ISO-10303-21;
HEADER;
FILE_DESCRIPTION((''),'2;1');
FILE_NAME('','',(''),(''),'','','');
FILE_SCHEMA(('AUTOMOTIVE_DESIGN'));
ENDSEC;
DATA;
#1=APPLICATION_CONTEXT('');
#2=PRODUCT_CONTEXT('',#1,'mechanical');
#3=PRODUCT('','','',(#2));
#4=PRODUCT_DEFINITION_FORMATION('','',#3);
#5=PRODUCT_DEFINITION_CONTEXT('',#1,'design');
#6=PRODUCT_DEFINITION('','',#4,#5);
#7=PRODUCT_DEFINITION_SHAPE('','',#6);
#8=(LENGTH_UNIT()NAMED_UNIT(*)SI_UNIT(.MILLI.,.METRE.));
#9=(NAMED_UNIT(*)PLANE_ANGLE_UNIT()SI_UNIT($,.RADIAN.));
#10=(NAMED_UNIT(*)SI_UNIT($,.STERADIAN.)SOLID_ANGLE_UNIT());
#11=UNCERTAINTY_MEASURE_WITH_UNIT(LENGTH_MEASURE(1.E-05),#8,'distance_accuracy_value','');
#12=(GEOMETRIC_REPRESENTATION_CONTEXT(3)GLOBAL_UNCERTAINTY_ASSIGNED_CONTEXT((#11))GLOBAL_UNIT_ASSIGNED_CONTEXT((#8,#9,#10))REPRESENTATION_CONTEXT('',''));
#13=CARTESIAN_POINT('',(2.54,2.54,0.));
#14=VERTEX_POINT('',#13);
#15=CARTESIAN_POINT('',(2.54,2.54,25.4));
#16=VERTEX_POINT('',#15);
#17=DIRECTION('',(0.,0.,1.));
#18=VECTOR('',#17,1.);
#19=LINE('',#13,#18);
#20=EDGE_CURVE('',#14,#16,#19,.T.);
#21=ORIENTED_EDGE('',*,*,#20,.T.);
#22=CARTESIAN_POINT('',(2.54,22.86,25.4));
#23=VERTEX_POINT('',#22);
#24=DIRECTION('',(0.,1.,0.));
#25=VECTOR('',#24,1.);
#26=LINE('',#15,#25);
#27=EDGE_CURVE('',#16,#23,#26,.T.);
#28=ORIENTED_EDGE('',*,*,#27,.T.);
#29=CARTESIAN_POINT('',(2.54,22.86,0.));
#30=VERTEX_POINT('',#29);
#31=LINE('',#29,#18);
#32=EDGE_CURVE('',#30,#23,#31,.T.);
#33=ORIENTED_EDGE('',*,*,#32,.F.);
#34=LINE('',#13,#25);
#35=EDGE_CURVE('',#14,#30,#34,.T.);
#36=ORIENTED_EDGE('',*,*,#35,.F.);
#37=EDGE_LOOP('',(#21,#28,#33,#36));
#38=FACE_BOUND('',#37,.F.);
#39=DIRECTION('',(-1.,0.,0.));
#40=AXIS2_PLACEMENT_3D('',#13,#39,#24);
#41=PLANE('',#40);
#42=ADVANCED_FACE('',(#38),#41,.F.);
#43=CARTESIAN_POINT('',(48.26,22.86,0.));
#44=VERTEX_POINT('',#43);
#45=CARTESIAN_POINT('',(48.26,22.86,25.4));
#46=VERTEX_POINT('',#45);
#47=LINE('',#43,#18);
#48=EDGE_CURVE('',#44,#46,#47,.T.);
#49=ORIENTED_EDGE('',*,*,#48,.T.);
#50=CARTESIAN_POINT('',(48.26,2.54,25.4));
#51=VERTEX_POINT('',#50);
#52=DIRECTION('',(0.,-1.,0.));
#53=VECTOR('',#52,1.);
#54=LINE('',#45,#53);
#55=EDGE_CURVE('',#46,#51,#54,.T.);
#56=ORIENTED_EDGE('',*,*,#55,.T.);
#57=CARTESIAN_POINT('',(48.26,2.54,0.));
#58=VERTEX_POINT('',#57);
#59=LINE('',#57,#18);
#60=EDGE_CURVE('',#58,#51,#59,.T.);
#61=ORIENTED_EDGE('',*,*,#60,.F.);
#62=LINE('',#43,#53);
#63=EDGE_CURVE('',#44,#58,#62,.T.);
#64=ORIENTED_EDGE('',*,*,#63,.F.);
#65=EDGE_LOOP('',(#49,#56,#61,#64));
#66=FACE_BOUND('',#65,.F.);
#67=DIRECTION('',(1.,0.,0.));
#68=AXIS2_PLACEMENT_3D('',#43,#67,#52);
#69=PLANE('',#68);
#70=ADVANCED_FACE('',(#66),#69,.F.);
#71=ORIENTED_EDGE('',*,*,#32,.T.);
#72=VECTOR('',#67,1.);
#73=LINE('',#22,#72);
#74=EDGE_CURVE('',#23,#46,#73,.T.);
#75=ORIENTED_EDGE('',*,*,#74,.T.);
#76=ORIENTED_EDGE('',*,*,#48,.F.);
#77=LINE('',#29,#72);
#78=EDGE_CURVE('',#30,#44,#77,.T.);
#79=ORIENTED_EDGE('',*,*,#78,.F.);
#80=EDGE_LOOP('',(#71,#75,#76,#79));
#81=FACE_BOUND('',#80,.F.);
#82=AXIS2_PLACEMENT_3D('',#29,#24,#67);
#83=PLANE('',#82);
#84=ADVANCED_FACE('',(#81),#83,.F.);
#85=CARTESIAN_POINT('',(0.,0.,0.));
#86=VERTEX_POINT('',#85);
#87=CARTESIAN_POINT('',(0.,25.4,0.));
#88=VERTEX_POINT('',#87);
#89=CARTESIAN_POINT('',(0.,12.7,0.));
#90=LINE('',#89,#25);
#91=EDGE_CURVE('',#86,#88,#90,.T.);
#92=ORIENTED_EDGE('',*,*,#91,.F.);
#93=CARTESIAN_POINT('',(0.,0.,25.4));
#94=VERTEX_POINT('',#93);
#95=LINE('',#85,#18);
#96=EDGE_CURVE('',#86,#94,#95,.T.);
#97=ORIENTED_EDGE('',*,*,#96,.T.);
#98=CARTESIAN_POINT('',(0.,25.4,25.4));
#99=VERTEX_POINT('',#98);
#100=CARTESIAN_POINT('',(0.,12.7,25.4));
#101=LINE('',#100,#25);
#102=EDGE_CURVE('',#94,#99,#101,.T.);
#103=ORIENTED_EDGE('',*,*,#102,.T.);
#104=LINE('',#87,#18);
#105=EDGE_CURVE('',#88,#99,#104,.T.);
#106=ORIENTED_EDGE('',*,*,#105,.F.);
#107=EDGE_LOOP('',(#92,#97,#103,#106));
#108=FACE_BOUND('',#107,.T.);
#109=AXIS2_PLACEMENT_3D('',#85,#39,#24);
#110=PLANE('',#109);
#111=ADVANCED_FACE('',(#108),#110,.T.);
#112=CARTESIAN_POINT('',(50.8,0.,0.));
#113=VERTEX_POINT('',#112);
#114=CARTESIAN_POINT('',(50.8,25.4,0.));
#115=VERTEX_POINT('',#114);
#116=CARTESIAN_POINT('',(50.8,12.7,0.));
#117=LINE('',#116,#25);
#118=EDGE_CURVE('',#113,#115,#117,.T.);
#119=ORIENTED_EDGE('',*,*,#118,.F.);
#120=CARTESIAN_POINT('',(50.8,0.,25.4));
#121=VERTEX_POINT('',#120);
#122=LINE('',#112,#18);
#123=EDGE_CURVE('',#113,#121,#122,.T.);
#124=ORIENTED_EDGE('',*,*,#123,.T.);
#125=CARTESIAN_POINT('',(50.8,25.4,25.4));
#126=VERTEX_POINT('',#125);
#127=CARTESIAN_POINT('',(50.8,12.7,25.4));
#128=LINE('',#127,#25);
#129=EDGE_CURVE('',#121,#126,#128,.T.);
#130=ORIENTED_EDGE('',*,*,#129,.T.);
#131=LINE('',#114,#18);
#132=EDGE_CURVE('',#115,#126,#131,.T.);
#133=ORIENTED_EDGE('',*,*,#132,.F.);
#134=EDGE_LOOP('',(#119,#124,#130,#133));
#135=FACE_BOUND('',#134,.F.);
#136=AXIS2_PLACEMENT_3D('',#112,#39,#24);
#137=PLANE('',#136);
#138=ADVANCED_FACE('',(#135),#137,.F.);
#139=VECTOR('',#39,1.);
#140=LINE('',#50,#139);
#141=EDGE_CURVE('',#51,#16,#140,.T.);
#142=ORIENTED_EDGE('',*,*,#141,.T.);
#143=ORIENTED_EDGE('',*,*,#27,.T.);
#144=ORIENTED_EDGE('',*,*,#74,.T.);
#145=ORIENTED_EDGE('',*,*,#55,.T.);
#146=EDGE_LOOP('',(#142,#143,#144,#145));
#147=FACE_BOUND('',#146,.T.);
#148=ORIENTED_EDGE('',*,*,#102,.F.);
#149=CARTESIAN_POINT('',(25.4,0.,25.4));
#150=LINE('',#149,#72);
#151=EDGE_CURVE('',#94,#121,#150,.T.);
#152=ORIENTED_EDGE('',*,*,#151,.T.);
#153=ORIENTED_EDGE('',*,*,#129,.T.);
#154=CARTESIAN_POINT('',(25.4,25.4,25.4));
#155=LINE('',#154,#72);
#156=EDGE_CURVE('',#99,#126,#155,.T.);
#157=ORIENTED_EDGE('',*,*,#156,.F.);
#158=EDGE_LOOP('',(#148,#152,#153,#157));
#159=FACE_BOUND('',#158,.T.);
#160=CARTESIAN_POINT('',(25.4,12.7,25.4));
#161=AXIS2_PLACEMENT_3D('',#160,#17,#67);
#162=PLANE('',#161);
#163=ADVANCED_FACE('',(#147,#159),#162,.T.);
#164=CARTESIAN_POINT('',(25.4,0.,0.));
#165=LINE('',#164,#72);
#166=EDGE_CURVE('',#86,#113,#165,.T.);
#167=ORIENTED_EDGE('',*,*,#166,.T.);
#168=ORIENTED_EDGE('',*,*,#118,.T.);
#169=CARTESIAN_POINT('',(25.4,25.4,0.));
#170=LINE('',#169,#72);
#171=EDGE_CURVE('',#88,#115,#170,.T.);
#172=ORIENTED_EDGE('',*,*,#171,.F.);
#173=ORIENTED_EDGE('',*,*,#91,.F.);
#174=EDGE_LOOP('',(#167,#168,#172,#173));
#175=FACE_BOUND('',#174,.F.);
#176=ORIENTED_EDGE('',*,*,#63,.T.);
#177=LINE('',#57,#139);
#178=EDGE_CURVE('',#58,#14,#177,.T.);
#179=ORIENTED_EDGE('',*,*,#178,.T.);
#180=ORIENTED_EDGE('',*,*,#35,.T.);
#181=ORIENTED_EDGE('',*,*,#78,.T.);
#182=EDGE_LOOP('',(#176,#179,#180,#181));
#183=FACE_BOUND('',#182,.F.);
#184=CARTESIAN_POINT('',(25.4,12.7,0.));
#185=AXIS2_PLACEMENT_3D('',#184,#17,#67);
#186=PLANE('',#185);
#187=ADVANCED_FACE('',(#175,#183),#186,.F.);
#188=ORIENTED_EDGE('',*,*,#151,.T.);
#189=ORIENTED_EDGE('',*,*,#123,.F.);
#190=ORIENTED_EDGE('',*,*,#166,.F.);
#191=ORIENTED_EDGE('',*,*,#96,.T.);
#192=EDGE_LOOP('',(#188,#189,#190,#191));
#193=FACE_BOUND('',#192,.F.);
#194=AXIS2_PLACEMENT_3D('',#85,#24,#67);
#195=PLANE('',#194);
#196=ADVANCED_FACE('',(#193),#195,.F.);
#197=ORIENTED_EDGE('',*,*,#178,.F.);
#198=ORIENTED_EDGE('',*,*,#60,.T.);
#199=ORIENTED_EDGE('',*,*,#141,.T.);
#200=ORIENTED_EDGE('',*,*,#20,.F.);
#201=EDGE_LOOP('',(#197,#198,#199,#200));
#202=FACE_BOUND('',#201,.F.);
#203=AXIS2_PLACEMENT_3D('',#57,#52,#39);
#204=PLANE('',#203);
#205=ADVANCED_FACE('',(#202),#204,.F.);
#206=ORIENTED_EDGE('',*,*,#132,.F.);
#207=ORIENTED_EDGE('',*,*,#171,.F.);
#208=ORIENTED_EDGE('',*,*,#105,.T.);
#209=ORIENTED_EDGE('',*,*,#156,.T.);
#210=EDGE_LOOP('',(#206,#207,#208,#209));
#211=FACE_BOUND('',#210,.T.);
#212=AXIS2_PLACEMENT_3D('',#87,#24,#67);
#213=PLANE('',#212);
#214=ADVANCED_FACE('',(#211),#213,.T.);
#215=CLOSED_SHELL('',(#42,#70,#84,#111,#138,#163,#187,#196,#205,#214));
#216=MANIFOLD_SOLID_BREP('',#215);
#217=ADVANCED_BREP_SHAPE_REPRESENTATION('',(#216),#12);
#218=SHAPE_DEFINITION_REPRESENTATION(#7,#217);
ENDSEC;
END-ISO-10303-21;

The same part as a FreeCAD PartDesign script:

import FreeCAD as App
import Part
import Sketcher

V = App.Vector
Q = App.Units.Quantity

doc = App.newDocument("Part")
body = doc.addObject("PartDesign::Body", "Body")

# Sketch on XY plane
sketch1 = body.newObject("Sketcher::SketchObject", "Sketch")
sketch1.AttachmentSupport = (doc.getObject("XY_Plane"), [""])
sketch1.MapMode = "FlatFace"
sketch1.addGeometry([
    Part.LineSegment(V(0, 25, 0), V(0, 0, 0)),  # 0
    Part.LineSegment(V(0, 0, 0), V(51, 0, 0)),  # 1
    Part.LineSegment(V(51, 0, 0), V(51, 25, 0)),  # 2
    Part.LineSegment(V(51, 25, 0), V(0, 25, 0)),  # 3
    Part.LineSegment(V(48, 3, 0), V(3, 3, 0)),  # 4
    Part.LineSegment(V(3, 3, 0), V(3, 23, 0)),  # 5
    Part.LineSegment(V(3, 23, 0), V(48, 23, 0)),  # 6
    Part.LineSegment(V(48, 23, 0), V(48, 3, 0)),  # 7
], False)
sketch1.addConstraint([
    Sketcher.Constraint("Coincident", 0, 2, 1, 1),
    Sketcher.Constraint("Coincident", 1, 2, 2, 1),
    Sketcher.Constraint("Coincident", 2, 2, 3, 1),
    Sketcher.Constraint("Coincident", 3, 2, 0, 1),
    Sketcher.Constraint("Coincident", 4, 2, 5, 1),
    Sketcher.Constraint("Coincident", 5, 2, 6, 1),
    Sketcher.Constraint("Coincident", 6, 2, 7, 1),
    Sketcher.Constraint("Coincident", 7, 2, 4, 1),
    Sketcher.Constraint("Vertical", 0),
    Sketcher.Constraint("Horizontal", 1),
    Sketcher.Constraint("Vertical", 2),
    Sketcher.Constraint("Horizontal", 3),
    Sketcher.Constraint("Horizontal", 4),
    Sketcher.Constraint("Vertical", 5),
    Sketcher.Constraint("Horizontal", 6),
    Sketcher.Constraint("Vertical", 7),
    Sketcher.Constraint("Coincident", 0, 2, -1, 1),
    Sketcher.Constraint("DistanceX", 1, 1, 1, 2, Q("2 in")),
    Sketcher.Constraint("DistanceY", 0, 2, 0, 1, Q("1 in")),
    Sketcher.Constraint("DistanceX", 4, 2, 4, 1, Q("1.8 in")),
    Sketcher.Constraint("DistanceY", 5, 1, 5, 2, Q("0.8 in")),
    Sketcher.Constraint("DistanceX", -1, 1, 4, 2, Q("0.1 in")),
    Sketcher.Constraint("DistanceY", -1, 1, 4, 2, Q("0.1 in")),
])
pad1 = body.newObject("PartDesign::Pad", "Pad")
pad1.Profile = sketch1
pad1.Length = Q("1 in")

doc.recompute()
